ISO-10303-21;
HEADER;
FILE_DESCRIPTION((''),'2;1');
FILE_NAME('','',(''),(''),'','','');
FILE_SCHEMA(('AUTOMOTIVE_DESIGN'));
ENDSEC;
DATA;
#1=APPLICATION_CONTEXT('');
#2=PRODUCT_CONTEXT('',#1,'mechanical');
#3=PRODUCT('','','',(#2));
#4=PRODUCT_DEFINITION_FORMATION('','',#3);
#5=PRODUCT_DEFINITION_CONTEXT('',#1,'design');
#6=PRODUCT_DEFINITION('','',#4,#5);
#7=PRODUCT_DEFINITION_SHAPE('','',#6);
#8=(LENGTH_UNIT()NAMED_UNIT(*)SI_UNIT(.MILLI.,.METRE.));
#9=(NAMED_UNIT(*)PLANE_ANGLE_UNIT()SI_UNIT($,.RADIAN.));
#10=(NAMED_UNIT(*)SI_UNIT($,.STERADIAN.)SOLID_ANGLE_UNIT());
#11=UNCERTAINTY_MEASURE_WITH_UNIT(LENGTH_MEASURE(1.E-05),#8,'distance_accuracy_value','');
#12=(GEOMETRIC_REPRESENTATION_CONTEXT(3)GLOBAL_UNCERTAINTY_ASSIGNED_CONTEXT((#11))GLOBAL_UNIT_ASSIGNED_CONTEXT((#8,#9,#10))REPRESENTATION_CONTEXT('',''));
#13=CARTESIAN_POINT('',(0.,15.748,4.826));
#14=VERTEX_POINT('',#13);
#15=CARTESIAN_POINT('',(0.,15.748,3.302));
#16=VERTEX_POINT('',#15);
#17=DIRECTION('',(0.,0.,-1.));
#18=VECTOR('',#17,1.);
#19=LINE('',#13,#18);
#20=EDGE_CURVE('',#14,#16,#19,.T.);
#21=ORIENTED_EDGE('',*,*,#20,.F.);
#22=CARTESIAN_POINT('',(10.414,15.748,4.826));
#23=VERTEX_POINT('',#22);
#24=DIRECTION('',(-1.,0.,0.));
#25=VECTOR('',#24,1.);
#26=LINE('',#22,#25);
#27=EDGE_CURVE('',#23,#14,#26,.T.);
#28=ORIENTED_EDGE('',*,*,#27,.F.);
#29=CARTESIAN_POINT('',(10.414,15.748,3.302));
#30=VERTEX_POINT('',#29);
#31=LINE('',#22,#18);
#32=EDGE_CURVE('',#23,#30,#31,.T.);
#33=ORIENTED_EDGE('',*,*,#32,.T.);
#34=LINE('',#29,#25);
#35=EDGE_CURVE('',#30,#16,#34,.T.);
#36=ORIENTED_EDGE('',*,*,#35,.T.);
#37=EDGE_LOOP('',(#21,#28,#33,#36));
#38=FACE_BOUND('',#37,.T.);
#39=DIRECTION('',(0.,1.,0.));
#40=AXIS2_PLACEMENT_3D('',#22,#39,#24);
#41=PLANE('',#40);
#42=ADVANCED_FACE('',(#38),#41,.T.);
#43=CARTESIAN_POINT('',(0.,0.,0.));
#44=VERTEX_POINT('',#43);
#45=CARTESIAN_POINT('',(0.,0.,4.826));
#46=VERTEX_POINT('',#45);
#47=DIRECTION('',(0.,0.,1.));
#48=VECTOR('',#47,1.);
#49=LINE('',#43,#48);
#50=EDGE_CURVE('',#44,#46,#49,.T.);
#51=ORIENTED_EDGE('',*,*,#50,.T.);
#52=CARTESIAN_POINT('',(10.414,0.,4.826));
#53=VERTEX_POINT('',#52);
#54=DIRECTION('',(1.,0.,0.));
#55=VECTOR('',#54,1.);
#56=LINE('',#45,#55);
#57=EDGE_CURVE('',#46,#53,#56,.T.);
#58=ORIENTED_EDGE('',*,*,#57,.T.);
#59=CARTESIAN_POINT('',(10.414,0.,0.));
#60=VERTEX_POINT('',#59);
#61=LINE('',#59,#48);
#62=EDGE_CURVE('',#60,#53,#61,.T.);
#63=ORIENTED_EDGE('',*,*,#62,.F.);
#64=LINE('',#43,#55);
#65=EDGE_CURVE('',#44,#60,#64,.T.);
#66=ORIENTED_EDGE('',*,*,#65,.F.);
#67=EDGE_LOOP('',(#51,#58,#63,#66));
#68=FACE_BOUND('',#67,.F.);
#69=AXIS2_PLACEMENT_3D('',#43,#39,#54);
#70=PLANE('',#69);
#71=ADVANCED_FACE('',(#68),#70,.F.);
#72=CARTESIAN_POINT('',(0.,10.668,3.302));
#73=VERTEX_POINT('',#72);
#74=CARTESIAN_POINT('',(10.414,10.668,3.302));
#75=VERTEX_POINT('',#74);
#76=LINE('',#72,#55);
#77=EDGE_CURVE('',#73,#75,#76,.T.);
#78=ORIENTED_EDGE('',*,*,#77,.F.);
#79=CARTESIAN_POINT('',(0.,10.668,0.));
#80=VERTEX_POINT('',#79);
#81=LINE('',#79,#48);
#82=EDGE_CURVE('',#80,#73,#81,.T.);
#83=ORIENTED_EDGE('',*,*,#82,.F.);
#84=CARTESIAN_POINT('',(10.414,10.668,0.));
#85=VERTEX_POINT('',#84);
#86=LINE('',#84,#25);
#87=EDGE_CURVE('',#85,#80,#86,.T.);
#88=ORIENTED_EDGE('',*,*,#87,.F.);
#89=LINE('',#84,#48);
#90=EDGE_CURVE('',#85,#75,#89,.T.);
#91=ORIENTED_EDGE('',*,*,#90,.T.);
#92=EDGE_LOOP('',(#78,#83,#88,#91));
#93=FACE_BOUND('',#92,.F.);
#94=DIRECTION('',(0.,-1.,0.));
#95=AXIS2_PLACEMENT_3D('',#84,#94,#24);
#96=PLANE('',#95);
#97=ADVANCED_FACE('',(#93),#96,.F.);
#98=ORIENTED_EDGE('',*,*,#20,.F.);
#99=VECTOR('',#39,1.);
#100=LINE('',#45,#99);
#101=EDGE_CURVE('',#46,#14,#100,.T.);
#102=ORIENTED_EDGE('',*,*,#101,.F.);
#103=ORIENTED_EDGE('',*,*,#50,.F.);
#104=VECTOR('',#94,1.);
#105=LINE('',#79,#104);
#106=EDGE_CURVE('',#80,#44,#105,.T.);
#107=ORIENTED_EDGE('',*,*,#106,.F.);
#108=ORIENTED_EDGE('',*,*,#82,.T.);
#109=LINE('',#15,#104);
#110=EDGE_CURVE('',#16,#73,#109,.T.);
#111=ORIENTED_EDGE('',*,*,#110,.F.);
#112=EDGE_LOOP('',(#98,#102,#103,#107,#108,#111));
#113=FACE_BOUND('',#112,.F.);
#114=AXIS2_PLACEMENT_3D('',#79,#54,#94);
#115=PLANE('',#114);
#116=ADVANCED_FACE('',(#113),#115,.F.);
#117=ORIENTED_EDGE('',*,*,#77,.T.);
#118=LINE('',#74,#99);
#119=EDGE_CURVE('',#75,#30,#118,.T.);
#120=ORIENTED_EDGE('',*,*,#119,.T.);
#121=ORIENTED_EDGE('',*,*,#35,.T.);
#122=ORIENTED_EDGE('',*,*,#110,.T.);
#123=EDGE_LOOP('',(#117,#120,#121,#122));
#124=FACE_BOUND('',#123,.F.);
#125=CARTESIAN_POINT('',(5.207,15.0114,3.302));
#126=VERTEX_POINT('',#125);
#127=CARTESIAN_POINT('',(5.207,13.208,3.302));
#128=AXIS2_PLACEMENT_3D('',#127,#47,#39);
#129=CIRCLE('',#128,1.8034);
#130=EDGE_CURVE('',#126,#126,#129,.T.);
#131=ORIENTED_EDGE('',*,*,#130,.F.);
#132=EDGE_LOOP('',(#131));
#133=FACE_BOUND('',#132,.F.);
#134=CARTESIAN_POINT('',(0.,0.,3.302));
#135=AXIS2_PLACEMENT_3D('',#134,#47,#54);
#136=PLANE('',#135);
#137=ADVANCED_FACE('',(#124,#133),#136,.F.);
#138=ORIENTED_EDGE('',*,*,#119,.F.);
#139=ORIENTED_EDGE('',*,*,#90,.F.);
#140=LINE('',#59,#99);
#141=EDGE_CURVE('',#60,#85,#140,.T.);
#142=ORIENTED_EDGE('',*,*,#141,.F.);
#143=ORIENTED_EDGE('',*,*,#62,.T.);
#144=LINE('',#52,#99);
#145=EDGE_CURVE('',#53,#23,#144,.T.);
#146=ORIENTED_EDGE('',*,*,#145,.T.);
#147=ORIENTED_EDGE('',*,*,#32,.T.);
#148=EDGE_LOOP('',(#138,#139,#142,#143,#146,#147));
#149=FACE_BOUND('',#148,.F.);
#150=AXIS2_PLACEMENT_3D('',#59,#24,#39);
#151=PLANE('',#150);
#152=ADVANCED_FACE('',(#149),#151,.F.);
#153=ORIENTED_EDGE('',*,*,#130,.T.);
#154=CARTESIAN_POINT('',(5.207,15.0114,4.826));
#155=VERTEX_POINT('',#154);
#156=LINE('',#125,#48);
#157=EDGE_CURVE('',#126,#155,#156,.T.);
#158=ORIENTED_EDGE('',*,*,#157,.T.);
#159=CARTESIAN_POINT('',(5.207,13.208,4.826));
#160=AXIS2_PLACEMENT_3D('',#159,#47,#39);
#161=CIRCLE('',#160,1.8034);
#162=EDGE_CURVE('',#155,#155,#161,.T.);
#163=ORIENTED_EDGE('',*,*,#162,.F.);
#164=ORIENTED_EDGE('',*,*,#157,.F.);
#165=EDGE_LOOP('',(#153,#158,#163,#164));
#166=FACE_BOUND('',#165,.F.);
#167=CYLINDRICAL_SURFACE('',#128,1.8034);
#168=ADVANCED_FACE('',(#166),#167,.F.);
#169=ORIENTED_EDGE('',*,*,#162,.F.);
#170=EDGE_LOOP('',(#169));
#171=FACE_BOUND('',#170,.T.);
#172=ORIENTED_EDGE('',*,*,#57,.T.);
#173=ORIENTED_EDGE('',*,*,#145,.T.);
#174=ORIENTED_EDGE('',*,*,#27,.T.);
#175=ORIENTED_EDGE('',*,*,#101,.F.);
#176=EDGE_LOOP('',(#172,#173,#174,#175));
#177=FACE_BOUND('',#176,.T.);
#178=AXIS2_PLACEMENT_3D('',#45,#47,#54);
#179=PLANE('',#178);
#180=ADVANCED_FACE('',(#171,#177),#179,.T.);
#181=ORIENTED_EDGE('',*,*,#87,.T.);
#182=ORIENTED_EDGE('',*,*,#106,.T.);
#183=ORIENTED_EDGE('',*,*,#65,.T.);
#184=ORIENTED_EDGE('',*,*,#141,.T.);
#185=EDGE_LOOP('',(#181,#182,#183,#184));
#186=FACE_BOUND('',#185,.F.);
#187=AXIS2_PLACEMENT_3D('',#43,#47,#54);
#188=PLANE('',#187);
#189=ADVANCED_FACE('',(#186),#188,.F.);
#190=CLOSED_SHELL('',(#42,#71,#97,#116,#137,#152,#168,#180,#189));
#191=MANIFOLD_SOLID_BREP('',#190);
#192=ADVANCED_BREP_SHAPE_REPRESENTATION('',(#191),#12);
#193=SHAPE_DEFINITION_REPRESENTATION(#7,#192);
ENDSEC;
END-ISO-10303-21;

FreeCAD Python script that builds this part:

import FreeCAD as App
import Part
import Sketcher
from FreeCAD import Vector
Q = App.Units.Quantity


def add_polygon(sketch, points):
    """Adds a closed chain of lines whose ends are joined by coincident constraints."""
    first, n = sketch.GeometryCount, len(points)
    for a, b in zip(points, points[1:] + points[:1]):
        sketch.addGeometry(Part.LineSegment(App.Vector(*a, 0), App.Vector(*b, 0)), False)
    for i in range(n):
        sketch.addConstraint(Sketcher.Constraint("Coincident", first + i, 2, first + (i + 1) % n, 1))

doc = App.newDocument("Part")
body = doc.addObject("PartDesign::Body", "Body")

# Sketch on XY plane
sketch1 = body.newObject("Sketcher::SketchObject", "Sketch")
sketch1.AttachmentSupport = (doc.getObject("XY_Plane"), [""])
sketch1.MapMode = "FlatFace"
add_polygon(sketch1, [(0, 10.668), (0, 0), (10.414, 0), (10.414, 10.668)])  # lines 0-3
sketch1.addConstraint(Sketcher.Constraint("Vertical", 0))
sketch1.addConstraint(Sketcher.Constraint("Horizontal", 1))
sketch1.addConstraint(Sketcher.Constraint("Vertical", 2))
sketch1.addConstraint(Sketcher.Constraint("Horizontal", 3))
sketch1.addConstraint(Sketcher.Constraint("Coincident", 0, 2, -1, 1))
sketch1.addConstraint(Sketcher.Constraint("DistanceX", 1, 1, 1, 2, Q("0.41 in")))
sketch1.addConstraint(Sketcher.Constraint("DistanceY", 0, 2, 0, 1, Q("0.42 in")))
pad1 = body.newObject("PartDesign::Pad", "Pad")
pad1.Profile = sketch1
pad1.Length = Q("0.19 in")

# Sketch on XY plane
sketch2 = body.newObject("Sketcher::SketchObject", "Sketch001")
sketch2.AttachmentSupport = (doc.getObject("XY_Plane"), [""])
sketch2.MapMode = "FlatFace"
sketch2.AttachmentOffset = App.Placement(Vector(0, 0, 0.19 * 25.4), App.Rotation())
add_polygon(sketch2, [(0, 15.748), (0, 10.668), (10.414, 10.668), (10.414, 15.748)])  # lines 0-3
sketch2.addConstraint(Sketcher.Constraint("Vertical", 0))
sketch2.addConstraint(Sketcher.Constraint("Horizontal", 1))
sketch2.addConstraint(Sketcher.Constraint("Vertical", 2))
sketch2.addConstraint(Sketcher.Constraint("Horizontal", 3))
sketch2.addConstraint(Sketcher.Constraint("PointOnObject", 0, 2, -2))
sketch2.addConstraint(Sketcher.Constraint("DistanceY", 0, 2, 0, 1, Q("0.2 in")))
sketch2.addConstraint(Sketcher.Constraint("DistanceX", 1, 1, 1, 2, Q("0.41 in")))
sketch2.addConstraint(Sketcher.Constraint("DistanceY", -1, 1, 0, 2, Q("0.42 in")))
pad2 = body.newObject("PartDesign::Pad", "Pad001")
pad2.Profile = sketch2
pad2.Length = Q("0.06 in")
pad2.Reversed = True

# Sketch on XY plane
sketch3 = body.newObject("Sketcher::SketchObject", "Sketch002")
sketch3.AttachmentSupport = (doc.getObject("XY_Plane"), [""])
sketch3.MapMode = "FlatFace"
sketch3.AttachmentOffset = App.Placement(Vector(0, 0, 0.13 * 25.4), App.Rotation())
sketch3.addGeometry(Part.Circle(Vector(5.207, 13.208, 0), Vector(0, 0, 1), 1.8034), False)
sketch3.addConstraint(Sketcher.Constraint("Diameter", 0, Q("0.142 in")))
sketch3.addConstraint(Sketcher.Constraint("DistanceY", -1, 1, 0, 3, Q("0.52 in")))
sketch3.addConstraint(Sketcher.Constraint("DistanceX", -1, 1, 0, 3, Q("0.205 in")))
doc.recompute()
hole = body.newObject("PartDesign::Hole", "Hole")
hole.Profile = sketch3
hole.ThreadType = "None"
hole.Diameter = Q("0.142 in")
hole.DepthType = "ThroughAll"
hole.Reversed = True

doc.recompute()
